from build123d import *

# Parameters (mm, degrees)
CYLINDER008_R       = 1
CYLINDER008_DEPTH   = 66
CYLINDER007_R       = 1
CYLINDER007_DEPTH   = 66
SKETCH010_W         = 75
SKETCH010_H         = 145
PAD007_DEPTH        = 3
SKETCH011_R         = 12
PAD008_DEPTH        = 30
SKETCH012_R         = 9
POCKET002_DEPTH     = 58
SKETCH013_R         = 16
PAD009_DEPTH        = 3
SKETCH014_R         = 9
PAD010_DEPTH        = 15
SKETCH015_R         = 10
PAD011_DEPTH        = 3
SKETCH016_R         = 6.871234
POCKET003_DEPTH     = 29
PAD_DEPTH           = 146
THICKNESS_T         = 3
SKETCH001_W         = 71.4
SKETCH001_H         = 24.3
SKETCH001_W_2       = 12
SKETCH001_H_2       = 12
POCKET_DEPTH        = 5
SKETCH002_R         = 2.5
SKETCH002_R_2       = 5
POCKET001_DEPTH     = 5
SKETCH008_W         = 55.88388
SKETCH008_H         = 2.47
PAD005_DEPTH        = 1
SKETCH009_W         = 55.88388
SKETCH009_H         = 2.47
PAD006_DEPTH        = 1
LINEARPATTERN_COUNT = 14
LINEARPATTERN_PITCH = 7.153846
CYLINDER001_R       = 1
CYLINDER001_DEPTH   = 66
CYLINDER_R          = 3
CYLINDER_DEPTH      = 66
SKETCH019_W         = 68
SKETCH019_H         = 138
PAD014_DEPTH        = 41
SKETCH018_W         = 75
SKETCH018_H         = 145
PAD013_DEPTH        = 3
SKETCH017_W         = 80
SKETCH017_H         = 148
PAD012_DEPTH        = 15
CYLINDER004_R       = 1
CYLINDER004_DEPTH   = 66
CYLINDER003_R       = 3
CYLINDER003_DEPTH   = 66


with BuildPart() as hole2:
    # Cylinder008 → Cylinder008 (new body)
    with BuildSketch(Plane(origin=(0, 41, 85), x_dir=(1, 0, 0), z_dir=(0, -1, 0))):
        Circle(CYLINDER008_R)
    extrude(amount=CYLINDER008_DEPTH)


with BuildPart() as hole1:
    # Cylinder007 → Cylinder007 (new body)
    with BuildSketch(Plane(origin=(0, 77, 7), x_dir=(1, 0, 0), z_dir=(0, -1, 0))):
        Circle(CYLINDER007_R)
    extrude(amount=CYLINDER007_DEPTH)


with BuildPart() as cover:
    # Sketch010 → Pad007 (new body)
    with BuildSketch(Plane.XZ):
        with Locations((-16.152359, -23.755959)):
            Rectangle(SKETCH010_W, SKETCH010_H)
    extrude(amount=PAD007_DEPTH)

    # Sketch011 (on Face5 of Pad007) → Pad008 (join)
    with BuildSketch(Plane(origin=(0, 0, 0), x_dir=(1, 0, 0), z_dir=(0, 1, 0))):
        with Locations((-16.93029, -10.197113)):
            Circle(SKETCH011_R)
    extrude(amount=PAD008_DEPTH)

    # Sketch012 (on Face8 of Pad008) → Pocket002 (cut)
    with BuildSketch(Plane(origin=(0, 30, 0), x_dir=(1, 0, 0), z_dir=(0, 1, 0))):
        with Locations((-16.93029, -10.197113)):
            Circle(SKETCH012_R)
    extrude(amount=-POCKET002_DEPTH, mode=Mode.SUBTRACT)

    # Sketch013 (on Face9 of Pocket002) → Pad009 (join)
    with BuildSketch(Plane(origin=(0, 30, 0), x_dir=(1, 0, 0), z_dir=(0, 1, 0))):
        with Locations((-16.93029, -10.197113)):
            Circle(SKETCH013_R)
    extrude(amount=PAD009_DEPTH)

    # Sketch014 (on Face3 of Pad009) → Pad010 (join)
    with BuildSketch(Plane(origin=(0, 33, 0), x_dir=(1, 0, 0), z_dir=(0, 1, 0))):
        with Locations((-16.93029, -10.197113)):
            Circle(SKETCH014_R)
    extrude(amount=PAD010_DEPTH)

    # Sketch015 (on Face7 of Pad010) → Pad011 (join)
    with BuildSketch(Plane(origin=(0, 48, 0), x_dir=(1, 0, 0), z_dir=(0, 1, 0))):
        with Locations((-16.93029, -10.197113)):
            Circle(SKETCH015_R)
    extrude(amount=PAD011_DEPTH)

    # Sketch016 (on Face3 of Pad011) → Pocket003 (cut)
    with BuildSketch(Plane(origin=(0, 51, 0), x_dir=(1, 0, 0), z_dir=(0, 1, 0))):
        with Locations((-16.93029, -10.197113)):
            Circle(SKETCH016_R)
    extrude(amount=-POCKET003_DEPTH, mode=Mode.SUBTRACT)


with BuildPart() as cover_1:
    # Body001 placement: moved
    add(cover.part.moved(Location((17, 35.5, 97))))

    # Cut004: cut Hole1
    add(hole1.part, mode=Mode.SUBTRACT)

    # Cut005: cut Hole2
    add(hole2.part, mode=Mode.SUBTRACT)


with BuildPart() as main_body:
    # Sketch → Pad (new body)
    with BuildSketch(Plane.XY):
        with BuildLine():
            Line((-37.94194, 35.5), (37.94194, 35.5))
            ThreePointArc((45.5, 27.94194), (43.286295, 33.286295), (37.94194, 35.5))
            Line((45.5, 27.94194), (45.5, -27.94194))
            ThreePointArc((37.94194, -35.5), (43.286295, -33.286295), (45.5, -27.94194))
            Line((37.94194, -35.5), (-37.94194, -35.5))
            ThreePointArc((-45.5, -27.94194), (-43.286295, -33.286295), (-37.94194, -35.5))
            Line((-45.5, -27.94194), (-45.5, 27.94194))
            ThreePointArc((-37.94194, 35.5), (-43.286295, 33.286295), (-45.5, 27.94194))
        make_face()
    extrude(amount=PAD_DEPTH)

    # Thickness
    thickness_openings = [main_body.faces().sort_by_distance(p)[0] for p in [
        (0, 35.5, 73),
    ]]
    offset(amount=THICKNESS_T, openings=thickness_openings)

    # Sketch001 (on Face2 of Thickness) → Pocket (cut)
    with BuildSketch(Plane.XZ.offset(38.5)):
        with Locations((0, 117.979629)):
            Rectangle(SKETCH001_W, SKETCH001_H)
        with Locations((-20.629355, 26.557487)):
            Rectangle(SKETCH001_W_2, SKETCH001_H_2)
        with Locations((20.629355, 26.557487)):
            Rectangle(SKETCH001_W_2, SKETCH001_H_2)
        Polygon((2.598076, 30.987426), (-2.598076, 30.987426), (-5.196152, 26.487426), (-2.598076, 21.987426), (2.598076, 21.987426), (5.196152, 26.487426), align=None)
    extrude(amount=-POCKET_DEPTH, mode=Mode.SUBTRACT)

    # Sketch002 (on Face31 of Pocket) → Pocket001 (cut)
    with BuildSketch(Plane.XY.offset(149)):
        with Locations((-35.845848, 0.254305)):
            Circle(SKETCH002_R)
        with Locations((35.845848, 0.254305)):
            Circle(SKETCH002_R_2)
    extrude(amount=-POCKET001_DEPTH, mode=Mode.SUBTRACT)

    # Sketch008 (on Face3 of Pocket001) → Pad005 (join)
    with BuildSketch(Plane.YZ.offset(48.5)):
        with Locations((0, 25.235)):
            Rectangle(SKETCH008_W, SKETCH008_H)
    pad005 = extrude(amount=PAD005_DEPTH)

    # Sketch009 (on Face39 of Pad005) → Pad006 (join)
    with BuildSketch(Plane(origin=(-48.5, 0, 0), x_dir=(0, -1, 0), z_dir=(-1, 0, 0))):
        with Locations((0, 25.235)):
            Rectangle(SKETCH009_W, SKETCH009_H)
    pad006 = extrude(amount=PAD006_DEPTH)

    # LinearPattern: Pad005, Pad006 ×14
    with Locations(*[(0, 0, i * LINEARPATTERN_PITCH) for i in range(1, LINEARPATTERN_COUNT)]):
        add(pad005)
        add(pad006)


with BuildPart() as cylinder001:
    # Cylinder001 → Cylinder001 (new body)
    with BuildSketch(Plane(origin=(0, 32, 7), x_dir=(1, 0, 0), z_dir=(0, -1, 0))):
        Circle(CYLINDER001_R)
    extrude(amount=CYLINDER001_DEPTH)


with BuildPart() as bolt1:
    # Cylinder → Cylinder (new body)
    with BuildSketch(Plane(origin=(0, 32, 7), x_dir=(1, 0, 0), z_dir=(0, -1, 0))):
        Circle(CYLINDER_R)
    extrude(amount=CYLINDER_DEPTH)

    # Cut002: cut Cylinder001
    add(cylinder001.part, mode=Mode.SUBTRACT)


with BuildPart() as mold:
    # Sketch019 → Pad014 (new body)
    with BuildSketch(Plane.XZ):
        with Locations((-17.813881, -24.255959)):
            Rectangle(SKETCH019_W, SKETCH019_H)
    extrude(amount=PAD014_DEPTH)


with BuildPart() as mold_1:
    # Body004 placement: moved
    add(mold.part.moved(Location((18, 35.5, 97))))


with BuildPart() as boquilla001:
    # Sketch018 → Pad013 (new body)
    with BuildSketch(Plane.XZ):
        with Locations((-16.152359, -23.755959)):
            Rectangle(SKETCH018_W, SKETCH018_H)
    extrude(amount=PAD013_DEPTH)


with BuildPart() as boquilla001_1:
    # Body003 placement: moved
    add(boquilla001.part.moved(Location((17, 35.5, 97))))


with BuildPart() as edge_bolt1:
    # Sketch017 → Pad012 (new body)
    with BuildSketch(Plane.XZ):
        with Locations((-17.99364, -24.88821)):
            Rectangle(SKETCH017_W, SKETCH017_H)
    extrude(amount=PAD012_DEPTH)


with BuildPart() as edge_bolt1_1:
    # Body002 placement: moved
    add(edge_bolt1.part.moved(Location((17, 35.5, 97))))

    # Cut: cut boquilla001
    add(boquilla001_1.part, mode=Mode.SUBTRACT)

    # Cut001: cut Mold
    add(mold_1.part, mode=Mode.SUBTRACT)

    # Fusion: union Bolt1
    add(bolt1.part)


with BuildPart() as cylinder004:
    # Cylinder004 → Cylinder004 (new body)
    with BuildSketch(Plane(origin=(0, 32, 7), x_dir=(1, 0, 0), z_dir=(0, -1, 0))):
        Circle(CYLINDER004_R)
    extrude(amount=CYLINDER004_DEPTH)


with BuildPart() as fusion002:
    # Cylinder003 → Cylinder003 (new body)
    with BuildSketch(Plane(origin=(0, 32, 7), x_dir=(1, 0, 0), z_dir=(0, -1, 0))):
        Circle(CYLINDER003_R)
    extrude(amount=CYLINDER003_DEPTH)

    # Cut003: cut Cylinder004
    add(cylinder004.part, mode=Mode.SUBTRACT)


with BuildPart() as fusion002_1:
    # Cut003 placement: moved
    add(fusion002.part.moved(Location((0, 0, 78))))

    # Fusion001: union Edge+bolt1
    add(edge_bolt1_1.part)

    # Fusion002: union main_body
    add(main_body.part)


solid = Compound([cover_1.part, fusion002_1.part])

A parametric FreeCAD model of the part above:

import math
import FreeCAD as App
import Part
import Sketcher
from FreeCAD import Vector
Q = App.Units.Quantity


def faces_at(feature, points):
    """Names of the faces that lie closest to the given points."""
    faces = feature.Shape.Faces
    near = lambda p: min(range(len(faces)), key=lambda i: faces[i].distToShape(Part.Vertex(*p))[0])
    return sorted({f"Face{near(p) + 1}" for p in points})

doc = App.newDocument("Part")
body = doc.addObject("PartDesign::Body", "Body")

sketch1 = body.newObject("Sketcher::SketchObject", "Sketch")
sketch1.AttachmentSupport = (doc.getObject("XZ_Plane"), [""])
sketch1.MapMode = "FlatFace"
sketch1.AttachmentOffset = App.Placement(Vector(0, 0, -41), App.Rotation())
sketch1.addGeometry(Part.Circle(Vector(0, 85, 0), Vector(0, 0, 1), 1), False)
sketch1.addConstraint(Sketcher.Constraint("PointOnObject", 0, 3, -2))
sketch1.addConstraint(Sketcher.Constraint("Diameter", 0, Q("2 mm")))
sketch1.addConstraint(Sketcher.Constraint("DistanceY", -1, 1, 0, 3, Q("85 mm")))
pad1 = body.newObject("PartDesign::Pad", "Pad")
pad1.Profile = sketch1
pad1.Length = 66
body2 = doc.addObject("PartDesign::Body", "Body001")

sketch2 = body2.newObject("Sketcher::SketchObject", "Sketch001")
sketch2.AttachmentSupport = (doc.getObject("XZ_Plane001"), [""])
sketch2.MapMode = "FlatFace"
sketch2.AttachmentOffset = App.Placement(Vector(0, 0, -77), App.Rotation())
sketch2.addGeometry(Part.Circle(Vector(0, 7, 0), Vector(0, 0, 1), 1), False)
sketch2.addConstraint(Sketcher.Constraint("PointOnObject", 0, 3, -2))
sketch2.addConstraint(Sketcher.Constraint("Diameter", 0, Q("2 mm")))
sketch2.addConstraint(Sketcher.Constraint("DistanceY", -1, 1, 0, 3, Q("7 mm")))
pad2 = body2.newObject("PartDesign::Pad", "Pad001")
pad2.Profile = sketch2
pad2.Length = 66
body3 = doc.addObject("PartDesign::Body", "Body002")

sketch3 = body3.newObject("Sketcher::SketchObject", "Sketch002")
sketch3.AttachmentSupport = (doc.getObject("XZ_Plane002"), [""])
sketch3.MapMode = "FlatFace"
sketch3.addGeometry(Part.LineSegment(Vector(-53.652359, 48.744041, 0), Vector(-53.652359, -96.255959, 0)), False)
sketch3.addGeometry(Part.LineSegment(Vector(-53.652359, -96.255959, 0), Vector(21.347641, -96.255959, 0)), False)
sketch3.addGeometry(Part.LineSegment(Vector(21.347641, -96.255959, 0), Vector(21.347641, 48.744041, 0)), False)
sketch3.addGeometry(Part.LineSegment(Vector(21.347641, 48.744041, 0), Vector(-53.652359, 48.744041, 0)), False)
sketch3.addConstraint(Sketcher.Constraint("Coincident", 0, 2, 1, 1))
sketch3.addConstraint(Sketcher.Constraint("Coincident", 1, 2, 2, 1))
sketch3.addConstraint(Sketcher.Constraint("Coincident", 2, 2, 3, 1))
sketch3.addConstraint(Sketcher.Constraint("Coincident", 3, 2, 0, 1))
sketch3.addConstraint(Sketcher.Constraint("Vertical", 0))
sketch3.addConstraint(Sketcher.Constraint("Horizontal", 1))
sketch3.addConstraint(Sketcher.Constraint("Vertical", 2))
sketch3.addConstraint(Sketcher.Constraint("Horizontal", 3))
sketch3.addConstraint(Sketcher.Constraint("DistanceX", 1, 1, 1, 2, Q("75 mm")))
sketch3.addConstraint(Sketcher.Constraint("DistanceY", 0, 2, 0, 1, Q("145 mm")))
sketch3.addConstraint(Sketcher.Constraint("DistanceX", 0, 2, -1, 1, Q("53.652359 mm")))
sketch3.addConstraint(Sketcher.Constraint("DistanceY", 0, 2, -1, 1, Q("96.255959 mm")))
pad3 = body3.newObject("PartDesign::Pad", "Pad002")
pad3.Profile = sketch3
pad3.Length = 3

sketch4 = body3.newObject("Sketcher::SketchObject", "Sketch003")
sketch4.AttachmentSupport = (doc.getObject("XZ_Plane002"), [""])
sketch4.MapMode = "FlatFace"
sketch4.addGeometry(Part.Circle(Vector(-16.93029, 10.197113, 0), Vector(0, 0, 1), 12), False)
sketch4.addConstraint(Sketcher.Constraint("Diameter", 0, Q("24 mm")))
sketch4.addConstraint(Sketcher.Constraint("DistanceX", 0, 3, -1, 1, Q("16.93029 mm")))
sketch4.addConstraint(Sketcher.Constraint("DistanceY", -1, 1, 0, 3, Q("10.197113 mm")))
pad4 = body3.newObject("PartDesign::Pad", "Pad003")
pad4.Profile = sketch4
pad4.Length = 30
pad4.Reversed = True

sketch5 = body3.newObject("Sketcher::SketchObject", "Sketch004")
sketch5.AttachmentSupport = (doc.getObject("XZ_Plane002"), [""])
sketch5.MapMode = "FlatFace"
sketch5.AttachmentOffset = App.Placement(Vector(0, 0, -30), App.Rotation())
sketch5.addGeometry(Part.Circle(Vector(-16.93029, 10.197113, 0), Vector(0, 0, 1), 9), False)
sketch5.addConstraint(Sketcher.Constraint("Diameter", 0, Q("18 mm")))
sketch5.addConstraint(Sketcher.Constraint("DistanceX", 0, 3, -1, 1, Q("16.93029 mm")))
sketch5.addConstraint(Sketcher.Constraint("DistanceY", -1, 1, 0, 3, Q("10.197113 mm")))
pocket1 = body3.newObject("PartDesign::Pocket", "Pocket")
pocket1.Profile = sketch5
pocket1.Length = 58
pocket1.Reversed = True

sketch6 = body3.newObject("Sketcher::SketchObject", "Sketch005")
sketch6.AttachmentSupport = (doc.getObject("XZ_Plane002"), [""])
sketch6.MapMode = "FlatFace"
sketch6.AttachmentOffset = App.Placement(Vector(0, 0, -30), App.Rotation())
sketch6.addGeometry(Part.Circle(Vector(-16.93029, 10.197113, 0), Vector(0, 0, 1), 16), False)
sketch6.addConstraint(Sketcher.Constraint("Diameter", 0, Q("32 mm")))
sketch6.addConstraint(Sketcher.Constraint("DistanceX", 0, 3, -1, 1, Q("16.93029 mm")))
sketch6.addConstraint(Sketcher.Constraint("DistanceY", -1, 1, 0, 3, Q("10.197113 mm")))
pad5 = body3.newObject("PartDesign::Pad", "Pad004")
pad5.Profile = sketch6
pad5.Length = 3
pad5.Reversed = True

sketch7 = body3.newObject("Sketcher::SketchObject", "Sketch006")
sketch7.AttachmentSupport = (doc.getObject("XZ_Plane002"), [""])
sketch7.MapMode = "FlatFace"
sketch7.AttachmentOffset = App.Placement(Vector(0, 0, -33), App.Rotation())
sketch7.addGeometry(Part.Circle(Vector(-16.93029, 10.197113, 0), Vector(0, 0, 1), 9), False)
sketch7.addConstraint(Sketcher.Constraint("Diameter", 0, Q("18 mm")))
sketch7.addConstraint(Sketcher.Constraint("DistanceX", 0, 3, -1, 1, Q("16.93029 mm")))
sketch7.addConstraint(Sketcher.Constraint("DistanceY", -1, 1, 0, 3, Q("10.197113 mm")))
pad6 = body3.newObject("PartDesign::Pad", "Pad005")
pad6.Profile = sketch7
pad6.Length = 15
pad6.Reversed = True

sketch8 = body3.newObject("Sketcher::SketchObject", "Sketch007")
sketch8.AttachmentSupport = (doc.getObject("XZ_Plane002"), [""])
sketch8.MapMode = "FlatFace"
sketch8.AttachmentOffset = App.Placement(Vector(0, 0, -48), App.Rotation())
sketch8.addGeometry(Part.Circle(Vector(-16.93029, 10.197113, 0), Vector(0, 0, 1), 10), False)
sketch8.addConstraint(Sketcher.Constraint("Diameter", 0, Q("20 mm")))
sketch8.addConstraint(Sketcher.Constraint("DistanceX", 0, 3, -1, 1, Q("16.93029 mm")))
sketch8.addConstraint(Sketcher.Constraint("DistanceY", -1, 1, 0, 3, Q("10.197113 mm")))
pad7 = body3.newObject("PartDesign::Pad", "Pad006")
pad7.Profile = sketch8
pad7.Length = 3
pad7.Reversed = True

sketch9 = body3.newObject("Sketcher::SketchObject", "Sketch008")
sketch9.AttachmentSupport = (doc.getObject("XZ_Plane002"), [""])
sketch9.MapMode = "FlatFace"
sketch9.AttachmentOffset = App.Placement(Vector(0, 0, -51), App.Rotation())
sketch9.addGeometry(Part.Circle(Vector(-16.93029, 10.197113, 0), Vector(0, 0, 1), 6.871234), False)
sketch9.addConstraint(Sketcher.Constraint("Diameter", 0, Q("13.742468 mm")))
sketch9.addConstraint(Sketcher.Constraint("DistanceX", 0, 3, -1, 1, Q("16.93029 mm")))
sketch9.addConstraint(Sketcher.Constraint("DistanceY", -1, 1, 0, 3, Q("10.197113 mm")))
pocket2 = body3.newObject("PartDesign::Pocket", "Pocket001")
pocket2.Profile = sketch9
pocket2.Length = 29
pocket2.Reversed = True
body4 = doc.addObject("PartDesign::Body", "Body003")
doc.recompute()

body3.Placement = App.Placement(Vector(17, 35.5, 97), App.Rotation(Vector(0, 0, 1), 0))
boolean = body4.newObject("PartDesign::Boolean", "Boolean")
boolean.Type = "Fuse"
boolean.addObjects([body3])
doc.recompute()

boolean2 = body4.newObject("PartDesign::Boolean", "Boolean001")
boolean2.Type = "Cut"
boolean2.addObjects([body2])
doc.recompute()

boolean3 = body4.newObject("PartDesign::Boolean", "Boolean002")
boolean3.Type = "Cut"
boolean3.addObjects([body])
body5 = doc.addObject("PartDesign::Body", "Body004")

sketch10 = body5.newObject("Sketcher::SketchObject", "Sketch009")
sketch10.AttachmentSupport = (doc.getObject("XY_Plane004"), [""])
sketch10.MapMode = "FlatFace"
sketch10.addGeometry(Part.LineSegment(Vector(37.94194, 35.5, 0), Vector(-37.94194, 35.5, 0)), False)
sketch10.addGeometry(Part.ArcOfCircle(Part.Circle(Vector(-37.941938, 27.941938, 0), Vector(0, 0, 1), 7.558062), math.radians(90.000012), math.radians(179.999988)), False)
sketch10.addGeometry(Part.LineSegment(Vector(-45.5, 27.94194, 0), Vector(-45.5, -27.94194, 0)), False)
sketch10.addGeometry(Part.ArcOfCircle(Part.Circle(Vector(-37.941938, -27.941938, 0), Vector(0, 0, 1), 7.558062), math.radians(-179.999988), math.radians(-90.000012)), False)
sketch10.addGeometry(Part.LineSegment(Vector(-37.94194, -35.5, 0), Vector(37.94194, -35.5, 0)), False)
sketch10.addGeometry(Part.ArcOfCircle(Part.Circle(Vector(37.941938, -27.941938, 0), Vector(0, 0, 1), 7.558062), math.radians(-89.999988), math.radians(-0.000012)), False)
sketch10.addGeometry(Part.LineSegment(Vector(45.5, -27.94194, 0), Vector(45.5, 27.94194, 0)), False)
sketch10.addGeometry(Part.ArcOfCircle(Part.Circle(Vector(37.941938, 27.941938, 0), Vector(0, 0, 1), 7.558062), math.radians(0.000012), math.radians(89.999988)), False)
sketch10.addConstraint(Sketcher.Constraint("Tangent", 0, 2, 1, 1))
sketch10.addConstraint(Sketcher.Constraint("Tangent", 1, 2, 2, 1))
sketch10.addConstraint(Sketcher.Constraint("Tangent", 2, 2, 3, 1))
sketch10.addConstraint(Sketcher.Constraint("Tangent", 3, 2, 4, 1))
sketch10.addConstraint(Sketcher.Constraint("Tangent", 4, 2, 5, 1))
sketch10.addConstraint(Sketcher.Constraint("Tangent", 5, 2, 6, 1))
sketch10.addConstraint(Sketcher.Constraint("Tangent", 6, 2, 7, 1))
sketch10.addConstraint(Sketcher.Constraint("Tangent", 7, 2, 0, 1))
sketch10.addConstraint(Sketcher.Constraint("Horizontal", 0))
sketch10.addConstraint(Sketcher.Constraint("Vertical", 2))
sketch10.addConstraint(Sketcher.Constraint("Horizontal", 4))
sketch10.addConstraint(Sketcher.Constraint("Vertical", 6))
sketch10.addConstraint(Sketcher.Constraint("Equal", 1, 3))
sketch10.addConstraint(Sketcher.Constraint("Equal", 3, 5))
sketch10.addConstraint(Sketcher.Constraint("Equal", 5, 7))
sketch10.addConstraint(Sketcher.Constraint("Symmetric", 1, 3, 5, 3, -1, 1))
sketch10.addConstraint(Sketcher.Constraint("DistanceY", 3, 2, 0, 2, Q("71 mm")))
sketch10.addConstraint(Sketcher.Constraint("DistanceX", 1, 2, -1, 1, Q("45.5 mm")))
sketch10.addConstraint(Sketcher.Constraint("Radius", 1, Q("7.558062 mm")))
pad8 = body5.newObject("PartDesign::Pad", "Pad007")
pad8.Profile = sketch10
pad8.Length = 146
doc.recompute()

thickness = body5.newObject("PartDesign::Thickness", "Thickness")
thickness.Base = (pad8, faces_at(pad8, [(0, 35.5, 73)]))
thickness.Value = 3
thickness.Reversed = False
thickness.Join = "Arc"

sketch11 = body5.newObject("Sketcher::SketchObject", "Sketch010")
sketch11.AttachmentSupport = (doc.getObject("XZ_Plane004"), [""])
sketch11.MapMode = "FlatFace"
sketch11.AttachmentOffset = App.Placement(Vector(0, 0, 38.5), App.Rotation())
sketch11.addGeometry(Part.LineSegment(Vector(-35.7, 130.129629, 0), Vector(-35.7, 105.829629, 0)), False)
sketch11.addGeometry(Part.LineSegment(Vector(-35.7, 105.829629, 0), Vector(35.7, 105.829629, 0)), False)
sketch11.addGeometry(Part.LineSegment(Vector(35.7, 105.829629, 0), Vector(35.7, 130.129629, 0)), False)
sketch11.addGeometry(Part.LineSegment(Vector(35.7, 130.129629, 0), Vector(-35.7, 130.129629, 0)), False)
sketch11.addGeometry(Part.LineSegment(Vector(-26.629355, 32.557487, 0), Vector(-26.629355, 20.557487, 0)), False)
sketch11.addGeometry(Part.LineSegment(Vector(-26.629355, 20.557487, 0), Vector(-14.629355, 20.557487, 0)), False)
sketch11.addGeometry(Part.LineSegment(Vector(-14.629355, 20.557487, 0), Vector(-14.629355, 32.557487, 0)), False)
sketch11.addGeometry(Part.LineSegment(Vector(-14.629355, 32.557487, 0), Vector(-26.629355, 32.557487, 0)), False)
sketch11.addGeometry(Part.LineSegment(Vector(14.629355, 32.557487, 0), Vector(14.629355, 20.557487, 0)), False)
sketch11.addGeometry(Part.LineSegment(Vector(14.629355, 20.557487, 0), Vector(26.629355, 20.557487, 0)), False)
sketch11.addGeometry(Part.LineSegment(Vector(26.629355, 20.557487, 0), Vector(26.629355, 32.557487, 0)), False)
sketch11.addGeometry(Part.LineSegment(Vector(26.629355, 32.557487, 0), Vector(14.629355, 32.557487, 0)), False)
sketch11.addGeometry(Part.LineSegment(Vector(2.598076, 30.987426, 0), Vector(-2.598076, 30.987426, 0)), False)
sketch11.addGeometry(Part.LineSegment(Vector(-2.598076, 30.987426, 0), Vector(-5.196152, 26.487426, 0)), False)
sketch11.addGeometry(Part.LineSegment(Vector(-5.196152, 26.487426, 0), Vector(-2.598076, 21.987426, 0)), False)
sketch11.addGeometry(Part.LineSegment(Vector(-2.598076, 21.987426, 0), Vector(2.598076, 21.987426, 0)), False)
sketch11.addGeometry(Part.LineSegment(Vector(2.598076, 21.987426, 0), Vector(5.196152, 26.487426, 0)), False)
sketch11.addGeometry(Part.LineSegment(Vector(5.196152, 26.487426, 0), Vector(2.598076, 30.987426, 0)), False)
sketch11.addConstraint(Sketcher.Constraint("Coincident", 0, 2, 1, 1))
sketch11.addConstraint(Sketcher.Constraint("Coincident", 1, 2, 2, 1))
sketch11.addConstraint(Sketcher.Constraint("Coincident", 2, 2, 3, 1))
sketch11.addConstraint(Sketcher.Constraint("Coincident", 3, 2, 0, 1))
sketch11.addConstraint(Sketcher.Constraint("Coincident", 4, 2, 5, 1))
sketch11.addConstraint(Sketcher.Constraint("Coincident", 5, 2, 6, 1))
sketch11.addConstraint(Sketcher.Constraint("Coincident", 6, 2, 7, 1))
sketch11.addConstraint(Sketcher.Constraint("Coincident", 7, 2, 4, 1))
sketch11.addConstraint(Sketcher.Constraint("Coincident", 8, 2, 9, 1))
sketch11.addConstraint(Sketcher.Constraint("Coincident", 9, 2, 10, 1))
sketch11.addConstraint(Sketcher.Constraint("Coincident", 10, 2, 11, 1))
sketch11.addConstraint(Sketcher.Constraint("Coincident", 11, 2, 8, 1))
sketch11.addConstraint(Sketcher.Constraint("Coincident", 12, 2, 13, 1))
sketch11.addConstraint(Sketcher.Constraint("Coincident", 13, 2, 14, 1))
sketch11.addConstraint(Sketcher.Constraint("Coincident", 14, 2, 15, 1))
sketch11.addConstraint(Sketcher.Constraint("Coincident", 15, 2, 16, 1))
sketch11.addConstraint(Sketcher.Constraint("Coincident", 16, 2, 17, 1))
sketch11.addConstraint(Sketcher.Constraint("Coincident", 17, 2, 12, 1))
sketch11.addConstraint(Sketcher.Constraint("Vertical", 0))
sketch11.addConstraint(Sketcher.Constraint("Horizontal", 1))
sketch11.addConstraint(Sketcher.Constraint("Vertical", 2))
sketch11.addConstraint(Sketcher.Constraint("Horizontal", 3))
sketch11.addConstraint(Sketcher.Constraint("Vertical", 4))
sketch11.addConstraint(Sketcher.Constraint("Horizontal", 5))
sketch11.addConstraint(Sketcher.Constraint("Vertical", 6))
sketch11.addConstraint(Sketcher.Constraint("Horizontal", 7))
sketch11.addConstraint(Sketcher.Constraint("Vertical", 8))
sketch11.addConstraint(Sketcher.Constraint("Horizontal", 9))
sketch11.addConstraint(Sketcher.Constraint("Vertical", 10))
sketch11.addConstraint(Sketcher.Constraint("Horizontal", 11))
sketch11.addConstraint(Sketcher.Constraint("Horizontal", 12))
sketch11.addConstraint(Sketcher.Constraint("Horizontal", 15))
sketch11.addConstraint(Sketcher.Constraint("Symmetric", 5, 2, 8, 2, -2))
sketch11.addConstraint(Sketcher.Constraint("Symmetric", 7, 2, 10, 2, -2))
sketch11.addConstraint(Sketcher.Constraint("Symmetric", 13, 2, 16, 2, -2))
sketch11.addConstraint(Sketcher.Constraint("Parallel", 13, 16))
sketch11.addConstraint(Sketcher.Constraint("Parallel", 14, 17))
sketch11.addConstraint(Sketcher.Constraint("Vertical", 12, 2, 14, 2))
sketch11.addConstraint(Sketcher.Constraint("Vertical", 15, 2, 17, 2))
sketch11.addConstraint(Sketcher.Constraint("Equal", 11, 4))
sketch11.addConstraint(Sketcher.Constraint("DistanceX", 5, 1, 5, 2, Q("12 mm")))
sketch11.addConstraint(Sketcher.Constraint("Angle", 13, Q("-119.999998 deg")))
sketch11.addConstraint(Sketcher.Constraint("DistanceX", 1, 1, 1, 2, Q("71.4 mm")))
sketch11.addConstraint(Sketcher.Constraint("DistanceY", 0, 2, 0, 1, Q("24.3 mm")))
sketch11.addConstraint(Sketcher.Constraint("DistanceY", 14, 2, 12, 2, Q("9 mm")))
sketch11.addConstraint(Sketcher.Constraint("DistanceX", 0, 2, -1, 1, Q("35.7 mm")))
sketch11.addConstraint(Sketcher.Constraint("DistanceX", 12, 2, 12, 1, Q("5.196152 mm")))
sketch11.addConstraint(Sketcher.Constraint("DistanceY", -1, 1, 0, 2, Q("105.829629 mm")))
sketch11.addConstraint(Sketcher.Constraint("DistanceY", 4, 2, 3, 2, Q("109.572142 mm")))
sketch11.addConstraint(Sketcher.Constraint("DistanceX", 5, 2, 8, 2, Q("29.25871 mm")))
sketch11.addConstraint(Sketcher.Constraint("DistanceY", 12, 2, 6, 2, Q("1.570061 mm")))
pocket3 = body5.newObject("PartDesign::Pocket", "Pocket002")
pocket3.Profile = sketch11
pocket3.Length = 5

sketch12 = body5.newObject("Sketcher::SketchObject", "Sketch011")
sketch12.AttachmentSupport = (doc.getObject("XY_Plane004"), [""])
sketch12.MapMode = "FlatFace"
sketch12.AttachmentOffset = App.Placement(Vector(0, 0, 149), App.Rotation())
sketch12.addGeometry(Part.Circle(Vector(-35.845848, 0.254305, 0), Vector(0, 0, 1), 2.5), False)
sketch12.addGeometry(Part.Circle(Vector(35.845848, 0.254305, 0), Vector(0, 0, 1), 5), False)
sketch12.addConstraint(Sketcher.Constraint("Symmetric", 0, 3, 1, 3, -2))
sketch12.addConstraint(Sketcher.Constraint("Diameter", 0, Q("5 mm")))
sketch12.addConstraint(Sketcher.Constraint("Diameter", 1, Q("10 mm")))
sketch12.addConstraint(Sketcher.Constraint("DistanceX", 0, 3, -1, 1, Q("35.845848 mm")))
sketch12.addConstraint(Sketcher.Constraint("DistanceY", -1, 1, 0, 3, Q("0.254305 mm")))
pocket4 = body5.newObject("PartDesign::Pocket", "Pocket003")
pocket4.Profile = sketch12
pocket4.Length = 5

sketch13 = body5.newObject("Sketcher::SketchObject", "Sketch012")
sketch13.AttachmentSupport = (doc.getObject("YZ_Plane004"), [""])
sketch13.MapMode = "FlatFace"
sketch13.AttachmentOffset = App.Placement(Vector(0, 0, 48.5), App.Rotation())
sketch13.addGeometry(Part.LineSegment(Vector(-27.94194, 26.47, 0), Vector(-27.94194, 24, 0)), False)
sketch13.addGeometry(Part.LineSegment(Vector(-27.94194, 24, 0), Vector(27.94194, 24, 0)), False)
sketch13.addGeometry(Part.LineSegment(Vector(27.94194, 24, 0), Vector(27.94194, 26.47, 0)), False)
sketch13.addGeometry(Part.LineSegment(Vector(27.94194, 26.47, 0), Vector(-27.94194, 26.47, 0)), False)
sketch13.addConstraint(Sketcher.Constraint("Coincident", 0, 2, 1, 1))
sketch13.addConstraint(Sketcher.Constraint("Coincident", 1, 2, 2, 1))
sketch13.addConstraint(Sketcher.Constraint("Coincident", 2, 2, 3, 1))
sketch13.addConstraint(Sketcher.Constraint("Coincident", 3, 2, 0, 1))
sketch13.addConstraint(Sketcher.Constraint("Vertical", 0))
sketch13.addConstraint(Sketcher.Constraint("Horizontal", 1))
sketch13.addConstraint(Sketcher.Constraint("Vertical", 2))
sketch13.addConstraint(Sketcher.Constraint("Horizontal", 3))
sketch13.addConstraint(Sketcher.Constraint("DistanceY", -1, 1, 0, 2, Q("24 mm")))
sketch13.addConstraint(Sketcher.Constraint("DistanceY", 0, 2, 0, 1, Q("2.47 mm")))
sketch13.addConstraint(Sketcher.Constraint("DistanceX", 1, 1, 1, 2, Q("55.88388 mm")))
sketch13.addConstraint(Sketcher.Constraint("DistanceX", 0, 2, -1, 1, Q("27.94194 mm")))
pad9 = body5.newObject("PartDesign::Pad", "Pad008")
pad9.Profile = sketch13
pad9.Length = 1

sketch14 = body5.newObject("Sketcher::SketchObject", "Sketch013")
sketch14.AttachmentSupport = (doc.getObject("YZ_Plane004"), [""])
sketch14.MapMode = "FlatFace"
sketch14.AttachmentOffset = App.Placement(Vector(0, 0, -48.5), App.Rotation())
sketch14.addGeometry(Part.LineSegment(Vector(27.94194, 26.47, 0), Vector(27.94194, 24, 0)), False)
sketch14.addGeometry(Part.LineSegment(Vector(27.94194, 24, 0), Vector(-27.94194, 24, 0)), False)
sketch14.addGeometry(Part.LineSegment(Vector(-27.94194, 24, 0), Vector(-27.94194, 26.47, 0)), False)
sketch14.addGeometry(Part.LineSegment(Vector(-27.94194, 26.47, 0), Vector(27.94194, 26.47, 0)), False)
sketch14.addConstraint(Sketcher.Constraint("Coincident", 0, 2, 1, 1))
sketch14.addConstraint(Sketcher.Constraint("Coincident", 1, 2, 2, 1))
sketch14.addConstraint(Sketcher.Constraint("Coincident", 2, 2, 3, 1))
sketch14.addConstraint(Sketcher.Constraint("Coincident", 3, 2, 0, 1))
sketch14.addConstraint(Sketcher.Constraint("Vertical", 0))
sketch14.addConstraint(Sketcher.Constraint("Horizontal", 1))
sketch14.addConstraint(Sketcher.Constraint("Vertical", 2))
sketch14.addConstraint(Sketcher.Constraint("Horizontal", 3))
sketch14.addConstraint(Sketcher.Constraint("DistanceY", -1, 1, 0, 2, Q("24 mm")))
sketch14.addConstraint(Sketcher.Constraint("DistanceY", 0, 2, 0, 1, Q("2.47 mm")))
sketch14.addConstraint(Sketcher.Constraint("DistanceX", 1, 2, 1, 1, Q("55.88388 mm")))
sketch14.addConstraint(Sketcher.Constraint("DistanceX", -1, 1, 0, 2, Q("27.94194 mm")))
pad10 = body5.newObject("PartDesign::Pad", "Pad009")
pad10.Profile = sketch14
pad10.Length = 1
pad10.Reversed = True
doc.recompute()

linearpattern = body5.newObject("PartDesign::LinearPattern", "LinearPattern")
linearpattern.Originals = [pad9, pad10]
linearpattern.Direction = (doc.getObject("Z_Axis004"), [""])
linearpattern.Mode = "offset"
linearpattern.Offset = 7.153846
linearpattern.Occurrences = 14
body5.Tip = linearpattern
body6 = doc.addObject("PartDesign::Body", "Body005")

sketch15 = body6.newObject("Sketcher::SketchObject", "Sketch014")
sketch15.AttachmentSupport = (doc.getObject("XZ_Plane005"), [""])
sketch15.MapMode = "FlatFace"
sketch15.AttachmentOffset = App.Placement(Vector(0, 0, -32), App.Rotation())
sketch15.addGeometry(Part.Circle(Vector(0, 7, 0), Vector(0, 0, 1), 1), False)
sketch15.addConstraint(Sketcher.Constraint("PointOnObject", 0, 3, -2))
sketch15.addConstraint(Sketcher.Constraint("Diameter", 0, Q("2 mm")))
sketch15.addConstraint(Sketcher.Constraint("DistanceY", -1, 1, 0, 3, Q("7 mm")))
pad11 = body6.newObject("PartDesign::Pad", "Pad010")
pad11.Profile = sketch15
pad11.Length = 66
body7 = doc.addObject("PartDesign::Body", "Body006")

sketch16 = body7.newObject("Sketcher::SketchObject", "Sketch015")
sketch16.AttachmentSupport = (doc.getObject("XZ_Plane006"), [""])
sketch16.MapMode = "FlatFace"
sketch16.AttachmentOffset = App.Placement(Vector(0, 0, -32), App.Rotation())
sketch16.addGeometry(Part.Circle(Vector(0, 7, 0), Vector(0, 0, 1), 3), False)
sketch16.addConstraint(Sketcher.Constraint("PointOnObject", 0, 3, -2))
sketch16.addConstraint(Sketcher.Constraint("Diameter", 0, Q("6 mm")))
sketch16.addConstraint(Sketcher.Constraint("DistanceY", -1, 1, 0, 3, Q("7 mm")))
pad12 = body7.newObject("PartDesign::Pad", "Pad011")
pad12.Profile = sketch16
pad12.Length = 66
doc.recompute()

boolean4 = body7.newObject("PartDesign::Boolean", "Boolean003")
boolean4.Type = "Cut"
boolean4.addObjects([body6])
body8 = doc.addObject("PartDesign::Body", "Body007")

sketch17 = body8.newObject("Sketcher::SketchObject", "Sketch016")
sketch17.AttachmentSupport = (doc.getObject("XZ_Plane007"), [""])
sketch17.MapMode = "FlatFace"
sketch17.addGeometry(Part.LineSegment(Vector(-51.813881, 44.744041, 0), Vector(-51.813881, -93.255959, 0)), False)
sketch17.addGeometry(Part.LineSegment(Vector(-51.813881, -93.255959, 0), Vector(16.186119, -93.255959, 0)), False)
sketch17.addGeometry(Part.LineSegment(Vector(16.186119, -93.255959, 0), Vector(16.186119, 44.744041, 0)), False)
sketch17.addGeometry(Part.LineSegment(Vector(16.186119, 44.744041, 0), Vector(-51.813881, 44.744041, 0)), False)
sketch17.addConstraint(Sketcher.Constraint("Coincident", 0, 2, 1, 1))
sketch17.addConstraint(Sketcher.Constraint("Coincident", 1, 2, 2, 1))
sketch17.addConstraint(Sketcher.Constraint("Coincident", 2, 2, 3, 1))
sketch17.addConstraint(Sketcher.Constraint("Coincident", 3, 2, 0, 1))
sketch17.addConstraint(Sketcher.Constraint("Vertical", 0))
sketch17.addConstraint(Sketcher.Constraint("Horizontal", 1))
sketch17.addConstraint(Sketcher.Constraint("Vertical", 2))
sketch17.addConstraint(Sketcher.Constraint("Horizontal", 3))
sketch17.addConstraint(Sketcher.Constraint("DistanceX", 1, 1, 1, 2, Q("68 mm")))
sketch17.addConstraint(Sketcher.Constraint("DistanceY", 0, 2, 0, 1, Q("138 mm")))
sketch17.addConstraint(Sketcher.Constraint("DistanceX", 0, 2, -1, 1, Q("51.813881 mm")))
sketch17.addConstraint(Sketcher.Constraint("DistanceY", 0, 2, -1, 1, Q("93.255959 mm")))
pad13 = body8.newObject("PartDesign::Pad", "Pad012")
pad13.Profile = sketch17
pad13.Length = 41
body9 = doc.addObject("PartDesign::Body", "Body008")
doc.recompute()

body8.Placement = App.Placement(Vector(18, 35.5, 97), App.Rotation(Vector(0, 0, 1), 0))
boolean5 = body9.newObject("PartDesign::Boolean", "Boolean004")
boolean5.Type = "Fuse"
boolean5.addObjects([body8])
body10 = doc.addObject("PartDesign::Body", "Body009")

sketch18 = body10.newObject("Sketcher::SketchObject", "Sketch017")
sketch18.AttachmentSupport = (doc.getObject("XZ_Plane009"), [""])
sketch18.MapMode = "FlatFace"
sketch18.addGeometry(Part.LineSegment(Vector(-53.652359, 48.744041, 0), Vector(-53.652359, -96.255959, 0)), False)
sketch18.addGeometry(Part.LineSegment(Vector(-53.652359, -96.255959, 0), Vector(21.347641, -96.255959, 0)), False)
sketch18.addGeometry(Part.LineSegment(Vector(21.347641, -96.255959, 0), Vector(21.347641, 48.744041, 0)), False)
sketch18.addGeometry(Part.LineSegment(Vector(21.347641, 48.744041, 0), Vector(-53.652359, 48.744041, 0)), False)
sketch18.addConstraint(Sketcher.Constraint("Coincident", 0, 2, 1, 1))
sketch18.addConstraint(Sketcher.Constraint("Coincident", 1, 2, 2, 1))
sketch18.addConstraint(Sketcher.Constraint("Coincident", 2, 2, 3, 1))
sketch18.addConstraint(Sketcher.Constraint("Coincident", 3, 2, 0, 1))
sketch18.addConstraint(Sketcher.Constraint("Vertical", 0))
sketch18.addConstraint(Sketcher.Constraint("Horizontal", 1))
sketch18.addConstraint(Sketcher.Constraint("Vertical", 2))
sketch18.addConstraint(Sketcher.Constraint("Horizontal", 3))
sketch18.addConstraint(Sketcher.Constraint("DistanceX", 1, 1, 1, 2, Q("75 mm")))
sketch18.addConstraint(Sketcher.Constraint("DistanceY", 0, 2, 0, 1, Q("145 mm")))
sketch18.addConstraint(Sketcher.Constraint("DistanceX", 0, 2, -1, 1, Q("53.652359 mm")))
sketch18.addConstraint(Sketcher.Constraint("DistanceY", 0, 2, -1, 1, Q("96.255959 mm")))
pad14 = body10.newObject("PartDesign::Pad", "Pad013")
pad14.Profile = sketch18
pad14.Length = 3
body11 = doc.addObject("PartDesign::Body", "Body010")
doc.recompute()

body10.Placement = App.Placement(Vector(17, 35.5, 97), App.Rotation(Vector(0, 0, 1), 0))
boolean6 = body11.newObject("PartDesign::Boolean", "Boolean005")
boolean6.Type = "Fuse"
boolean6.addObjects([body10])
body12 = doc.addObject("PartDesign::Body", "Body011")

sketch19 = body12.newObject("Sketcher::SketchObject", "Sketch018")
sketch19.AttachmentSupport = (doc.getObject("XZ_Plane011"), [""])
sketch19.MapMode = "FlatFace"
sketch19.addGeometry(Part.LineSegment(Vector(-57.99364, 49.11179, 0), Vector(-57.99364, -98.88821, 0)), False)
sketch19.addGeometry(Part.LineSegment(Vector(-57.99364, -98.88821, 0), Vector(22.00636, -98.88821, 0)), False)
sketch19.addGeometry(Part.LineSegment(Vector(22.00636, -98.88821, 0), Vector(22.00636, 49.11179, 0)), False)
sketch19.addGeometry(Part.LineSegment(Vector(22.00636, 49.11179, 0), Vector(-57.99364, 49.11179, 0)), False)
sketch19.addConstraint(Sketcher.Constraint("Coincident", 0, 2, 1, 1))
sketch19.addConstraint(Sketcher.Constraint("Coincident", 1, 2, 2, 1))
sketch19.addConstraint(Sketcher.Constraint("Coincident", 2, 2, 3, 1))
sketch19.addConstraint(Sketcher.Constraint("Coincident", 3, 2, 0, 1))
sketch19.addConstraint(Sketcher.Constraint("Vertical", 0))
sketch19.addConstraint(Sketcher.Constraint("Horizontal", 1))
sketch19.addConstraint(Sketcher.Constraint("Vertical", 2))
sketch19.addConstraint(Sketcher.Constraint("Horizontal", 3))
sketch19.addConstraint(Sketcher.Constraint("DistanceX", 1, 1, 1, 2, Q("80 mm")))
sketch19.addConstraint(Sketcher.Constraint("DistanceY", 0, 2, 0, 1, Q("148 mm")))
sketch19.addConstraint(Sketcher.Constraint("DistanceX", 0, 2, -1, 1, Q("57.99364 mm")))
sketch19.addConstraint(Sketcher.Constraint("DistanceY", 0, 2, -1, 1, Q("98.88821 mm")))
pad15 = body12.newObject("PartDesign::Pad", "Pad014")
pad15.Profile = sketch19
pad15.Length = 15
body13 = doc.addObject("PartDesign::Body", "Body012")
body13.AllowCompound = True
doc.recompute()

body12.Placement = App.Placement(Vector(17, 35.5, 97), App.Rotation(Vector(0, 0, 1), 0))
boolean7 = body13.newObject("PartDesign::Boolean", "Boolean006")
boolean7.Type = "Fuse"
boolean7.addObjects([body12])
doc.recompute()

boolean8 = body13.newObject("PartDesign::Boolean", "Boolean007")
boolean8.Type = "Cut"
boolean8.addObjects([body11])
doc.recompute()

boolean9 = body13.newObject("PartDesign::Boolean", "Boolean008")
boolean9.Type = "Cut"
boolean9.addObjects([body9])
doc.recompute()

boolean10 = body13.newObject("PartDesign::Boolean", "Boolean009")
boolean10.Type = "Fuse"
boolean10.addObjects([body7])
body14 = doc.addObject("PartDesign::Body", "Body013")

sketch20 = body14.newObject("Sketcher::SketchObject", "Sketch019")
sketch20.AttachmentSupport = (doc.getObject("XZ_Plane013"), [""])
sketch20.MapMode = "FlatFace"
sketch20.AttachmentOffset = App.Placement(Vector(0, 0, -32), App.Rotation())
sketch20.addGeometry(Part.Circle(Vector(0, 7, 0), Vector(0, 0, 1), 1), False)
sketch20.addConstraint(Sketcher.Constraint("PointOnObject", 0, 3, -2))
sketch20.addConstraint(Sketcher.Constraint("Diameter", 0, Q("2 mm")))
sketch20.addConstraint(Sketcher.Constraint("DistanceY", -1, 1, 0, 3, Q("7 mm")))
pad16 = body14.newObject("PartDesign::Pad", "Pad015")
pad16.Profile = sketch20
pad16.Length = 66
body15 = doc.addObject("PartDesign::Body", "Body014")

sketch21 = body15.newObject("Sketcher::SketchObject", "Sketch020")
sketch21.AttachmentSupport = (doc.getObject("XZ_Plane014"), [""])
sketch21.MapMode = "FlatFace"
sketch21.AttachmentOffset = App.Placement(Vector(0, 0, -32), App.Rotation())
sketch21.addGeometry(Part.Circle(Vector(0, 7, 0), Vector(0, 0, 1), 3), False)
sketch21.addConstraint(Sketcher.Constraint("PointOnObject", 0, 3, -2))
sketch21.addConstraint(Sketcher.Constraint("Diameter", 0, Q("6 mm")))
sketch21.addConstraint(Sketcher.Constraint("DistanceY", -1, 1, 0, 3, Q("7 mm")))
pad17 = body15.newObject("PartDesign::Pad", "Pad016")
pad17.Profile = sketch21
pad17.Length = 66
doc.recompute()

boolean11 = body15.newObject("PartDesign::Boolean", "Boolean010")
boolean11.Type = "Cut"
boolean11.addObjects([body14])
body16 = doc.addObject("PartDesign::Body", "Body015")
body16.AllowCompound = True
doc.recompute()

body15.Placement = App.Placement(Vector(0, 0, 78), App.Rotation(Vector(0, 0, 1), 0))
boolean12 = body16.newObject("PartDesign::Boolean", "Boolean011")
boolean12.Type = "Fuse"
boolean12.addObjects([body15])
doc.recompute()

boolean13 = body16.newObject("PartDesign::Boolean", "Boolean012")
boolean13.Type = "Fuse"
boolean13.addObjects([body13])
doc.recompute()

boolean14 = body16.newObject("PartDesign::Boolean", "Boolean013")
boolean14.Type = "Fuse"
boolean14.addObjects([body5])

doc.recompute()
